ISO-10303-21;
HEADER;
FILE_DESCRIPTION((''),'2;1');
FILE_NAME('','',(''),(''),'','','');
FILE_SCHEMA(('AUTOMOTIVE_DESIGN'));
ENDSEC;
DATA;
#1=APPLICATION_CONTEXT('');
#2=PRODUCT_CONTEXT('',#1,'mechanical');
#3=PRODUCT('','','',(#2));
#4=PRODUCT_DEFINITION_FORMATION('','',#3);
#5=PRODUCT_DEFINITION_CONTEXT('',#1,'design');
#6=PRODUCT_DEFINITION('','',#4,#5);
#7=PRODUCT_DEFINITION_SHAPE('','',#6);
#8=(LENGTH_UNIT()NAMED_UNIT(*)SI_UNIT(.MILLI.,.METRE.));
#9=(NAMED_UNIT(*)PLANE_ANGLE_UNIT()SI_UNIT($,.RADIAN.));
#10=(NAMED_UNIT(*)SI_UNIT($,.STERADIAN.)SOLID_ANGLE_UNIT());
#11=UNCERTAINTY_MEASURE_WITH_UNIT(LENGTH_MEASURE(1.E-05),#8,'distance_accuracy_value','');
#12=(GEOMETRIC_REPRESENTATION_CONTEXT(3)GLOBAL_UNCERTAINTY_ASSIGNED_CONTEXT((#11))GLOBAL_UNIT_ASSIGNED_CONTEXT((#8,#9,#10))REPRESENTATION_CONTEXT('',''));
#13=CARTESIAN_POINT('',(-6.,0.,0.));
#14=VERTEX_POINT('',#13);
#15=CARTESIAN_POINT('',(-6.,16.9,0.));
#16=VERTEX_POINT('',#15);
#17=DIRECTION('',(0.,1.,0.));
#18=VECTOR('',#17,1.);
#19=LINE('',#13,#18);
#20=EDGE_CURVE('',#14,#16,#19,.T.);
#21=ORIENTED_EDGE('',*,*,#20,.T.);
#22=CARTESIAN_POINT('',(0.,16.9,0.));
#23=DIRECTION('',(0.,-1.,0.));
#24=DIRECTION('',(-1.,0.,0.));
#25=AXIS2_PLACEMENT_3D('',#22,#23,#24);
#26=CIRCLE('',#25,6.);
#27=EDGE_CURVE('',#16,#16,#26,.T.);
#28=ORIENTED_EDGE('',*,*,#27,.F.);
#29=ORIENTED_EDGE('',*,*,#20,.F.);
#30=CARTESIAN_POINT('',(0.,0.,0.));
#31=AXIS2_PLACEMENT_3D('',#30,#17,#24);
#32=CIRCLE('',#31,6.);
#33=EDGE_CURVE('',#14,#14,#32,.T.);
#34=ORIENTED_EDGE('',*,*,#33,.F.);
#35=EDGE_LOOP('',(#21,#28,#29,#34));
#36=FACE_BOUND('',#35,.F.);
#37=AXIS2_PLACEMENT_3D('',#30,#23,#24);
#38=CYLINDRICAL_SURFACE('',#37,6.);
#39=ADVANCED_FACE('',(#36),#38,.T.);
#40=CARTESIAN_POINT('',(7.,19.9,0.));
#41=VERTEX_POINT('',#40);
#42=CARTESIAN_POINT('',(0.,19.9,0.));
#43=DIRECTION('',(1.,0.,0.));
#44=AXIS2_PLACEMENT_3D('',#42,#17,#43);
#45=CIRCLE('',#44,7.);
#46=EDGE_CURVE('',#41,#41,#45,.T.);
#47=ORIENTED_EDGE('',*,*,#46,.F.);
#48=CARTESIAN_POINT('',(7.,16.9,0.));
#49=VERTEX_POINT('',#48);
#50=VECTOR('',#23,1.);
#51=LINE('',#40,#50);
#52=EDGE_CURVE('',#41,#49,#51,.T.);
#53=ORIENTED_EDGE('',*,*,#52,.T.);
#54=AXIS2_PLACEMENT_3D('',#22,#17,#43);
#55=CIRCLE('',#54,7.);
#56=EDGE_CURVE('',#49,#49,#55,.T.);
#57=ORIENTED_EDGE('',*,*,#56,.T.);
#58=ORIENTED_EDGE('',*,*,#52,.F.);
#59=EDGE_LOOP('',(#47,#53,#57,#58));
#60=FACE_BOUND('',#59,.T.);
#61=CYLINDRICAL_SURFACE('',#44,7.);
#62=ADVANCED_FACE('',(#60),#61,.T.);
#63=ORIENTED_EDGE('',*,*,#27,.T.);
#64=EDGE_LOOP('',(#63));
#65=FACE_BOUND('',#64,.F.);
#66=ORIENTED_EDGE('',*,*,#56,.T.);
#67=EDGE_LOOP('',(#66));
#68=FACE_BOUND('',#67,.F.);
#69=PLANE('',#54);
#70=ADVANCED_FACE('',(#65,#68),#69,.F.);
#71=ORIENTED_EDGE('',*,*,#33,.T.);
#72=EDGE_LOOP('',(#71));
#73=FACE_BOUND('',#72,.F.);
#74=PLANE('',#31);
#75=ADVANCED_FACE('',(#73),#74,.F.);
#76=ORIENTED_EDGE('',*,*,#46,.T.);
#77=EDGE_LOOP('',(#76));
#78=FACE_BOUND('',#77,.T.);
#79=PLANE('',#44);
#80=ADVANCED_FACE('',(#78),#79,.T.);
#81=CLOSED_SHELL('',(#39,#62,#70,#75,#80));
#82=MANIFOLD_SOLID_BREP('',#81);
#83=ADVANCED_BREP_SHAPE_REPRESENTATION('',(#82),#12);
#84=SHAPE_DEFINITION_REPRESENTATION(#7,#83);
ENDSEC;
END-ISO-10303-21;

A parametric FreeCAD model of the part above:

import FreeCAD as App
import Part
import Sketcher
from FreeCAD import Vector
Q = App.Units.Quantity

doc = App.newDocument("Part")
body = doc.addObject("PartDesign::Body", "Body")

# Sketch on XZ plane
sketch1 = body.newObject("Sketcher::SketchObject", "Sketch")
sketch1.AttachmentSupport = (doc.getObject("XZ_Plane"), [""])
sketch1.MapMode = "FlatFace"
sketch1.addGeometry(Part.Circle(Vector(0, 0, 0), Vector(0, 0, 1), 6), False)
sketch1.addConstraint([
    Sketcher.Constraint("Coincident", 0, 3, -1, 1),
    Sketcher.Constraint("Diameter", 0, Q("12 mm")),
])
pad1 = body.newObject("PartDesign::Pad", "Pad")
pad1.Profile = sketch1
pad1.Length = 19.9
pad1.Reversed = True

# Sketch on XZ plane
sketch2 = body.newObject("Sketcher::SketchObject", "Sketch001")
sketch2.AttachmentSupport = (doc.getObject("XZ_Plane"), [""])
sketch2.MapMode = "FlatFace"
sketch2.AttachmentOffset = App.Placement(Vector(0, 0, -19.9), App.Rotation())
sketch2.addGeometry(Part.Circle(Vector(0, 0, 0), Vector(0, 0, 1), 7), False)
sketch2.addConstraint([
    Sketcher.Constraint("Coincident", 0, 3, -1, 1),
    Sketcher.Constraint("Diameter", 0, Q("14 mm")),
])
pad2 = body.newObject("PartDesign::Pad", "Pad001")
pad2.Profile = sketch2
pad2.Length = 3

doc.recompute()
